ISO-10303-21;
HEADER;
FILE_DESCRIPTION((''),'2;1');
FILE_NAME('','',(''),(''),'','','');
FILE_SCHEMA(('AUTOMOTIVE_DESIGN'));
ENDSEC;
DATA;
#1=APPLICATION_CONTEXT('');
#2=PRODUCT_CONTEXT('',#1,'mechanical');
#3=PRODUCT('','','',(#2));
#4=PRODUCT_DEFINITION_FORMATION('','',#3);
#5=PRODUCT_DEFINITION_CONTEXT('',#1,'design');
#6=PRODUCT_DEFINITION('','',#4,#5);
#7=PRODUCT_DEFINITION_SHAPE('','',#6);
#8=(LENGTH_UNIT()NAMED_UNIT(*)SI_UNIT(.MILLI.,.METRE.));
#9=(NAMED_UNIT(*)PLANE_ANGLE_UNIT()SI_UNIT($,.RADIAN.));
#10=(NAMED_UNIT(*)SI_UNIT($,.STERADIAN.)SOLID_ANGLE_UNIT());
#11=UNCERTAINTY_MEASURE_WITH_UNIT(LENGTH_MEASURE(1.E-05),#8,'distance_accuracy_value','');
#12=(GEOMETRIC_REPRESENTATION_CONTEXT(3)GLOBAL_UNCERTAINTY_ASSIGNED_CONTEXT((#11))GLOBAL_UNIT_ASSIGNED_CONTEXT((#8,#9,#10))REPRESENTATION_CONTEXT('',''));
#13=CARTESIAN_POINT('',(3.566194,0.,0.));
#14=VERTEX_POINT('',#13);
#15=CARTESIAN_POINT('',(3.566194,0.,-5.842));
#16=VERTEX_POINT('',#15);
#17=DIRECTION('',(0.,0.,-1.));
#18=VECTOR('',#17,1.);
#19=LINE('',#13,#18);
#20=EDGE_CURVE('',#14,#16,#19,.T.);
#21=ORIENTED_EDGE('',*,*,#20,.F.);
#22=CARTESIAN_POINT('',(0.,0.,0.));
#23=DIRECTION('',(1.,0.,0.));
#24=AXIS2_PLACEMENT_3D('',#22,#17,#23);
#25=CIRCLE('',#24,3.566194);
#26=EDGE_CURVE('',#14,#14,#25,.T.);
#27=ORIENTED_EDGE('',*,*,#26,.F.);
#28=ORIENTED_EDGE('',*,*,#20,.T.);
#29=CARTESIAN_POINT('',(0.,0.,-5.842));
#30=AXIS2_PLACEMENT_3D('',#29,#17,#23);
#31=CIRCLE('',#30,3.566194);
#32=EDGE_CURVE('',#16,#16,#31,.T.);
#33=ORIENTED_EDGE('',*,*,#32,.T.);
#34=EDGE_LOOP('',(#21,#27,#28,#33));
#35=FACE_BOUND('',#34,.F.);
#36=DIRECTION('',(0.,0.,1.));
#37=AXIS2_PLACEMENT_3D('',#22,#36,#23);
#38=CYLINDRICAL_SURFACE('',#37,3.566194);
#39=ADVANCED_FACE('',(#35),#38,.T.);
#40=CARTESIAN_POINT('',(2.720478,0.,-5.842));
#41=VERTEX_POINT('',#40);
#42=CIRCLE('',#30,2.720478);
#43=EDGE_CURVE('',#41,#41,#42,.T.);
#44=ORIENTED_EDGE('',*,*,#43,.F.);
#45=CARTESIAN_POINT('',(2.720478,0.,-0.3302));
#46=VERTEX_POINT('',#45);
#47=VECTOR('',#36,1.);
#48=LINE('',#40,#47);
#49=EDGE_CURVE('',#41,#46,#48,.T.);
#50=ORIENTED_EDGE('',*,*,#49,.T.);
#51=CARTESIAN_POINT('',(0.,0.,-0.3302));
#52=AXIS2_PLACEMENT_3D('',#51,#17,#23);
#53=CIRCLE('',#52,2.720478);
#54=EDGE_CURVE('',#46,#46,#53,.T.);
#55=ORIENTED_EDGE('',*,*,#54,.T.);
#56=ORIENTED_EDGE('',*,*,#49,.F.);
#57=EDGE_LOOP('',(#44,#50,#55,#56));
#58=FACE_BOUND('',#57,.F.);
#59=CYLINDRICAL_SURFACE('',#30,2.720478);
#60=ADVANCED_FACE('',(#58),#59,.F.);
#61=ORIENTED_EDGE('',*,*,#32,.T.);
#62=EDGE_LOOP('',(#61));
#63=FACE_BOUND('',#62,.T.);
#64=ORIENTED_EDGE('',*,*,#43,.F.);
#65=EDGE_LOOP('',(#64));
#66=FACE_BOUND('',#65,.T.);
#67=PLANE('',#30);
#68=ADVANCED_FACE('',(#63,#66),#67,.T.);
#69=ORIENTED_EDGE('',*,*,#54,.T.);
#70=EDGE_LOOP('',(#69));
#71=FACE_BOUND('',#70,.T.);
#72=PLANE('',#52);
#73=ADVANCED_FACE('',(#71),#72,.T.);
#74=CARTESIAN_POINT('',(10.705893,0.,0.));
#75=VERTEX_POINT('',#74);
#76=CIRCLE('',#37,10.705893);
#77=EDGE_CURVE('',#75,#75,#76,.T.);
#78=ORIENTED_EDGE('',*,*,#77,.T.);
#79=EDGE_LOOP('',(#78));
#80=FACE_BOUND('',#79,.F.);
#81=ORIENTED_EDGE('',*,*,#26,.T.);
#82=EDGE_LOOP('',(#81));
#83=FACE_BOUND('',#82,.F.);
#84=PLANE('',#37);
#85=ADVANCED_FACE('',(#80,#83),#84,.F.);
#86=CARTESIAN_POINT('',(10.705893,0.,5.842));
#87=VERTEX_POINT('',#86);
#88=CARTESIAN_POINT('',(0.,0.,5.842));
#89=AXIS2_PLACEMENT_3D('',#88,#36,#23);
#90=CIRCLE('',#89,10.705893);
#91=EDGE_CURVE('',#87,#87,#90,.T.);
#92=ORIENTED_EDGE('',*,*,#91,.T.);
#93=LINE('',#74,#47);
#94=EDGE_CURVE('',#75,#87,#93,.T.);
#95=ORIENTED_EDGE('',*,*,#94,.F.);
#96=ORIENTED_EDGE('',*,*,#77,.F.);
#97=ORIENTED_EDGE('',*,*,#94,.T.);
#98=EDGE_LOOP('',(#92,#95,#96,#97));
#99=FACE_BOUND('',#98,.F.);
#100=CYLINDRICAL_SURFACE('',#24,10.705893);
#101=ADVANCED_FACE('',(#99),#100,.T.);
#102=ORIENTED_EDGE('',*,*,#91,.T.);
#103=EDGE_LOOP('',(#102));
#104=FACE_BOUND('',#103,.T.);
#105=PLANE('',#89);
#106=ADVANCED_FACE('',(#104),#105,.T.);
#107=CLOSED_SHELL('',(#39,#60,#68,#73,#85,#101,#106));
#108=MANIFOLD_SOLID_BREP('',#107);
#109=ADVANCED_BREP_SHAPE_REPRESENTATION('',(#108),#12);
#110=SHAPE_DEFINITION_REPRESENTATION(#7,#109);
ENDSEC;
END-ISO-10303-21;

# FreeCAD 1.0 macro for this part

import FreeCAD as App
import Part
import Sketcher
from FreeCAD import Vector

doc = App.newDocument("Part")
params = doc.addObject("Spreadsheet::Sheet", "Params")
for row, (alias, value) in enumerate([
    ("pad1_length", "0.23 in"),
    ("pad2_length", "0.23 in"),
    ("pad3_length", "0.217 in"),
    ("pad4_length", "0.217 in"),
    ("pocket1_length", "0.217 in"),
], start=1):
    params.set(f"A{row}", alias)
    params.set(f"B{row}", "=" + value)
    params.setAlias(f"B{row}", alias)

body = doc.addObject("PartDesign::Body", "Body")

sketch1 = doc.addObject("Sketcher::SketchObject", "Sketch")
body.addObject(sketch1)
sketch1.AttachmentSupport = (doc.XY_Plane, [""])
sketch1.MapMode = "FlatFace"
sketch1.addGeometry(Part.Circle(Vector(0, 0, 0), Vector(0, 0, 1), 11), False)
sketch1.addConstraint(Sketcher.Constraint("Coincident", 0, 3, -1, 1))
sketch1.addConstraint(Sketcher.Constraint("Diameter", 0, 21.411786))
pad1 = doc.addObject("PartDesign::Pad", "Pad")
body.addObject(pad1)
pad1.Profile = sketch1
pad1.setExpression("Length", "Params.pad1_length")

sketch2 = doc.addObject("Sketcher::SketchObject", "Sketch001")
body.addObject(sketch2)
sketch2.AttachmentSupport = (doc.XY_Plane, [""])
sketch2.MapMode = "FlatFace"
sketch2.addGeometry(Part.Circle(Vector(0, 0, 0), Vector(0, 0, 1), 3.6), False)
sketch2.addConstraint(Sketcher.Constraint("Coincident", 0, 3, -1, 1))
sketch2.addConstraint(Sketcher.Constraint("Diameter", 0, 7.132388))
pad2 = doc.addObject("PartDesign::Pad", "Pad001")
body.addObject(pad2)
pad2.Profile = sketch2
pad2.setExpression("Length", "Params.pad2_length")
pad2.Reversed = True

sketch3 = doc.addObject("Sketcher::SketchObject", "Sketch002")
body.addObject(sketch3)
sketch3.AttachmentSupport = (doc.XY_Plane, [""])
sketch3.MapMode = "FlatFace"
sketch3.AttachmentOffset = App.Placement(Vector(0, 0, -0.23 * 25.4), App.Rotation())
sketch3.addGeometry(Part.Circle(Vector(0, 0, 0), Vector(0, 0, 1), 2.7), False)
sketch3.addConstraint(Sketcher.Constraint("Coincident", 0, 3, -1, 1))
sketch3.addConstraint(Sketcher.Constraint("Diameter", 0, 5.439072))
pad3 = doc.addObject("PartDesign::Pad", "Pad002")
body.addObject(pad3)
pad3.Profile = sketch3
pad3.setExpression("Length", "Params.pad3_length")

sketch4 = doc.addObject("Sketcher::SketchObject", "Sketch003")
body.addObject(sketch4)
sketch4.AttachmentSupport = (doc.XY_Plane, [""])
sketch4.MapMode = "FlatFace"
sketch4.AttachmentOffset = App.Placement(Vector(0, 0, -0.23 * 25.4), App.Rotation())
sketch4.addGeometry(Part.Circle(Vector(0, 0, 0), Vector(0, 0, 1), 2.7), False)
sketch4.addConstraint(Sketcher.Constraint("Coincident", 0, 3, -1, 1))
sketch4.addConstraint(Sketcher.Constraint("Diameter", 0, 5.435954))
pad4 = doc.addObject("PartDesign::Pad", "Pad003")
body.addObject(pad4)
pad4.Profile = sketch4
pad4.setExpression("Length", "Params.pad4_length")

sketch5 = doc.addObject("Sketcher::SketchObject", "Sketch004")
body.addObject(sketch5)
sketch5.AttachmentSupport = (doc.XY_Plane, [""])
sketch5.MapMode = "FlatFace"
sketch5.AttachmentOffset = App.Placement(Vector(0, 0, -0.23 * 25.4), App.Rotation())
sketch5.addGeometry(Part.Circle(Vector(0, 0, 0), Vector(0, 0, 1), 2.7), False)
sketch5.addConstraint(Sketcher.Constraint("Coincident", 0, 3, -1, 1))
sketch5.addConstraint(Sketcher.Constraint("Diameter", 0, 5.440956))
pocket1 = doc.addObject("PartDesign::Pocket", "Pocket")
body.addObject(pocket1)
pocket1.Profile = sketch5
pocket1.setExpression("Length", "Params.pocket1_length")
pocket1.Reversed = True

doc.recompute()
